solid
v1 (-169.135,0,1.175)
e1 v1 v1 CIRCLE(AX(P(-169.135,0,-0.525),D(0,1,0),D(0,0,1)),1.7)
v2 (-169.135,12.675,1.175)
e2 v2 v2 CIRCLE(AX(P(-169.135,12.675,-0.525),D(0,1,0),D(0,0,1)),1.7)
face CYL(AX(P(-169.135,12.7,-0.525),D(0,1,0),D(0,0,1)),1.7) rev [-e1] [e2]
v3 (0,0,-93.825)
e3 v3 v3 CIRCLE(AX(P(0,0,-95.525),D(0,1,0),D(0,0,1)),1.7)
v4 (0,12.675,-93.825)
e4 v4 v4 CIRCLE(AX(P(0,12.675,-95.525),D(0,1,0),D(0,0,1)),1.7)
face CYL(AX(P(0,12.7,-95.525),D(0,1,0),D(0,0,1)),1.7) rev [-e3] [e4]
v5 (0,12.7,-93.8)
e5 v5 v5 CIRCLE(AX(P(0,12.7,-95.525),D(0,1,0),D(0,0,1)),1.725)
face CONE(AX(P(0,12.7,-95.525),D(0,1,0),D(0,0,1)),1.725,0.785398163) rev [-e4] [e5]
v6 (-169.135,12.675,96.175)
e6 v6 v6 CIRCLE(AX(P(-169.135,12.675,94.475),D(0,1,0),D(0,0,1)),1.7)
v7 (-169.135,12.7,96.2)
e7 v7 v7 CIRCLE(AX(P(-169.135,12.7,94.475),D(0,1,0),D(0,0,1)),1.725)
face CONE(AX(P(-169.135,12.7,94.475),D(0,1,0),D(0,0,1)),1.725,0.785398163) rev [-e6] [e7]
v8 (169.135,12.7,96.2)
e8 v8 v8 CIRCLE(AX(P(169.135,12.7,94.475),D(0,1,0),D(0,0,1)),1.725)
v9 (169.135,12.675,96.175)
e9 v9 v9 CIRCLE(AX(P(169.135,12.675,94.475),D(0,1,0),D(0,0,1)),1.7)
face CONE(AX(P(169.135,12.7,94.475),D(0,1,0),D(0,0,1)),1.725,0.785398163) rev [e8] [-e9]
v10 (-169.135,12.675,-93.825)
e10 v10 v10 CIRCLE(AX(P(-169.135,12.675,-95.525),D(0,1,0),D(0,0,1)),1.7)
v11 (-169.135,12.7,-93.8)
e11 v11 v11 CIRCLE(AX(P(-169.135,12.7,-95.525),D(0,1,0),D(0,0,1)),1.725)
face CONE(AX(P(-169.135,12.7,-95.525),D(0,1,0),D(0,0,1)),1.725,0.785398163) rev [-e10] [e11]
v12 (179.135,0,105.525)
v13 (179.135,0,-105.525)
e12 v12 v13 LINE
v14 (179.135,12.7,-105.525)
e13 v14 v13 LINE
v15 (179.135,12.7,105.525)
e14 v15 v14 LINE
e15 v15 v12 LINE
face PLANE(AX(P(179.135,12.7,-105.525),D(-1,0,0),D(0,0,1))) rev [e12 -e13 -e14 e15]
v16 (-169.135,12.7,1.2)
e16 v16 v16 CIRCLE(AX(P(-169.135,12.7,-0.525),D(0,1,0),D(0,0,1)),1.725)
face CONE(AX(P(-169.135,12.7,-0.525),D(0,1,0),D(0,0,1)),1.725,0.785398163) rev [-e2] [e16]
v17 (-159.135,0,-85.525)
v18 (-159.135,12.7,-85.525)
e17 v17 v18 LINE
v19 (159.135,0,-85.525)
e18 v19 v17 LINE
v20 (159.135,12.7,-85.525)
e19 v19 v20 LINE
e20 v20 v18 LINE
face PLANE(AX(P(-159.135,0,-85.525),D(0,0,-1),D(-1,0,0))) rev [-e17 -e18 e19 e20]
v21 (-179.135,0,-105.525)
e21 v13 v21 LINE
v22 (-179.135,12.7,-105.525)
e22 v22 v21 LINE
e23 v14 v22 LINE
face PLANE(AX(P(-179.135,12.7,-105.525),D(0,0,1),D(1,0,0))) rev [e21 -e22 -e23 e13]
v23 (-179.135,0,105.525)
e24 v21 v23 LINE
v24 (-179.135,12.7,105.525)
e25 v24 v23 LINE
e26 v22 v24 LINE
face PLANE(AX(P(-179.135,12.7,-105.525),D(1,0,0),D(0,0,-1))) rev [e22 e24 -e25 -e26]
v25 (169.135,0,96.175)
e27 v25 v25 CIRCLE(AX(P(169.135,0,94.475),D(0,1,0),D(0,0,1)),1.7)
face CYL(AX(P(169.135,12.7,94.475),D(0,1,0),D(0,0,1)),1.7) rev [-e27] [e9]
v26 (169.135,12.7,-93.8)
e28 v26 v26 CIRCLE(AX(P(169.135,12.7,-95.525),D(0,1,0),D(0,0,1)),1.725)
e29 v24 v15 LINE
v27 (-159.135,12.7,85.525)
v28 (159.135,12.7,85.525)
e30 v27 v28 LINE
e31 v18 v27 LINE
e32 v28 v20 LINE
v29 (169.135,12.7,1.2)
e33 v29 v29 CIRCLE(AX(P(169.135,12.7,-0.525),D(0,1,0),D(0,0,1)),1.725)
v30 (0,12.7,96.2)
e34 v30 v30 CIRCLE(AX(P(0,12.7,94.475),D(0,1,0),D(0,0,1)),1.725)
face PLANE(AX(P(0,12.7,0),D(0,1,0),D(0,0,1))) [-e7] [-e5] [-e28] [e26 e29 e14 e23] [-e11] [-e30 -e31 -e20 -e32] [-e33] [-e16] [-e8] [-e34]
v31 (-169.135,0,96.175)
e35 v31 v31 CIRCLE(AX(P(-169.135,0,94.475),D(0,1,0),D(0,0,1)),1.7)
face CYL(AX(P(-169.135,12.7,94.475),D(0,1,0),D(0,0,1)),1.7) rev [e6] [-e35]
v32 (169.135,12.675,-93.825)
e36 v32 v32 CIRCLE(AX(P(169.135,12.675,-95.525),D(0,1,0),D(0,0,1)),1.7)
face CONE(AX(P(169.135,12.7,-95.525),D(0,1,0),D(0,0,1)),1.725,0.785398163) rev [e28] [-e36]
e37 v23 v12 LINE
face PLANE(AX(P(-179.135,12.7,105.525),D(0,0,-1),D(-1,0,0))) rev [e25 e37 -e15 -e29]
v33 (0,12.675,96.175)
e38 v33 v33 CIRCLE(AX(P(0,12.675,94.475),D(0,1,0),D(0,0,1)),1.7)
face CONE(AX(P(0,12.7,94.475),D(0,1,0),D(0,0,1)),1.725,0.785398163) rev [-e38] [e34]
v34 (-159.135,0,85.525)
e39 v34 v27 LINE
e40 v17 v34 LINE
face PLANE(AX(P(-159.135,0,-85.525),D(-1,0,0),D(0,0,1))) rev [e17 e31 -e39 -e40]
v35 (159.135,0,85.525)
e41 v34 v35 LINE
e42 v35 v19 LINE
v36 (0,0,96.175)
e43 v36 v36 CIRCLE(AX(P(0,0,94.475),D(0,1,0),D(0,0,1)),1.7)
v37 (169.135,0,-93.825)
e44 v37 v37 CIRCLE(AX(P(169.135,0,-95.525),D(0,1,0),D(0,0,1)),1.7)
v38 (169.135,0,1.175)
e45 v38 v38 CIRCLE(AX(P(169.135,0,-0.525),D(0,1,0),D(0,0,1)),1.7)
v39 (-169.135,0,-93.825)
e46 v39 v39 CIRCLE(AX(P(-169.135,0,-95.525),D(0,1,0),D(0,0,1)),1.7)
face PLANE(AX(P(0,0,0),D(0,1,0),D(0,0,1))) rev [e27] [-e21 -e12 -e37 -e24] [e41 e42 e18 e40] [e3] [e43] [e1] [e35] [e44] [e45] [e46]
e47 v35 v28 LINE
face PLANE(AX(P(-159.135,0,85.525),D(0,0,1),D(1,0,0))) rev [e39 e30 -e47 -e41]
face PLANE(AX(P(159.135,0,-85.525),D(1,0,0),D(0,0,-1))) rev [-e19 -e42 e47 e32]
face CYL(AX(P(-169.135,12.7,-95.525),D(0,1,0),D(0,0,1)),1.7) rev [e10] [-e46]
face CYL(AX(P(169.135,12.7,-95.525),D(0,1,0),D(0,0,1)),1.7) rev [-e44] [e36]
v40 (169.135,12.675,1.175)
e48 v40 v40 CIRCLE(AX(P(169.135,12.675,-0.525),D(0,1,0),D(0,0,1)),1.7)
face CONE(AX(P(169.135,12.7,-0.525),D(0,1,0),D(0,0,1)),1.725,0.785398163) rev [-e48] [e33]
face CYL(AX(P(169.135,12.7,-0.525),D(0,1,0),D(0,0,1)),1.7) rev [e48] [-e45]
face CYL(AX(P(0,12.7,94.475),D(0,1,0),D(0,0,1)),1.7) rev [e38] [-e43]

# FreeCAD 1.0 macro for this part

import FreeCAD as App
import Part
import Sketcher
from FreeCAD import Vector


def add_polygon(sketch, points):
    """Adds a closed chain of lines whose ends are joined by coincident constraints."""
    first, n = sketch.GeometryCount, len(points)
    for a, b in zip(points, points[1:] + points[:1]):
        sketch.addGeometry(Part.LineSegment(App.Vector(*a, 0), App.Vector(*b, 0)), False)
    for i in range(n):
        sketch.addConstraint(Sketcher.Constraint("Coincident", first + i, 2, first + (i + 1) % n, 1))

doc = App.newDocument("Part")
body = doc.addObject("PartDesign::Body", "Body")

# Sketch on XZ plane
sketch1 = body.newObject("Sketcher::SketchObject", "Sketch")
sketch1.AttachmentSupport = (doc.getObject("XZ_Plane"), [""])
sketch1.MapMode = "FlatFace"
add_polygon(sketch1, [(-179, -106), (-179, 106), (179, 106), (179, -106)])  # lines 0-3
sketch1.addConstraint(Sketcher.Constraint("Vertical", 0))
sketch1.addConstraint(Sketcher.Constraint("Horizontal", 1))
sketch1.addConstraint(Sketcher.Constraint("Vertical", 2))
sketch1.addConstraint(Sketcher.Constraint("Horizontal", 3))
sketch1.addConstraint(Sketcher.Constraint("Symmetric", 0, 2, 2, 2, -1, 1))
sketch1.addConstraint(Sketcher.Constraint("DistanceX", 1, 1, 1, 2, 358.27))
sketch1.addConstraint(Sketcher.Constraint("DistanceY", 0, 1, 0, 2, 211.05))
pad1 = body.newObject("PartDesign::Pad", "Pad")
pad1.Profile = sketch1
pad1.Length = 12.7
pad1.Reversed = True

# Sketch on XZ plane
sketch2 = body.newObject("Sketcher::SketchObject", "Sketch001")
sketch2.AttachmentSupport = (doc.getObject("XZ_Plane"), [""])
sketch2.MapMode = "FlatFace"
sketch2.AttachmentOffset = App.Placement(Vector(0, 0, -12.7), App.Rotation())
add_polygon(sketch2, [(-159, -86), (-159, 86), (159, 86), (159, -86)])  # lines 0-3
sketch2.addConstraint(Sketcher.Constraint("Vertical", 0))
sketch2.addConstraint(Sketcher.Constraint("Horizontal", 1))
sketch2.addConstraint(Sketcher.Constraint("Vertical", 2))
sketch2.addConstraint(Sketcher.Constraint("Horizontal", 3))
sketch2.addConstraint(Sketcher.Constraint("Symmetric", 0, 2, 2, 2, -1, 1))
sketch2.addConstraint(Sketcher.Constraint("DistanceX", 1, 1, 1, 2, 318.27))
sketch2.addConstraint(Sketcher.Constraint("DistanceY", 0, 1, 0, 2, 171.05))
pocket1 = body.newObject("PartDesign::Pocket", "Pocket")
pocket1.Profile = sketch2
pocket1.Length = 12.7
pocket1.Reversed = True

# Sketch on XZ plane
sketch3 = body.newObject("Sketcher::SketchObject", "Sketch002")
sketch3.AttachmentSupport = (doc.getObject("XZ_Plane"), [""])
sketch3.MapMode = "FlatFace"
sketch3.AttachmentOffset = App.Placement(Vector(0, 0, -12.7), App.Rotation())
sketch3.addGeometry(Part.Circle(Vector(-169.1, -95.5, 0), Vector(0, 0, 1), 1.7), False)
sketch3.addGeometry(Part.Circle(Vector(-169.1, -0.5, 0), Vector(0, 0, 1), 1.7), False)
sketch3.addGeometry(Part.Circle(Vector(-169.1, 94.5, 0), Vector(0, 0, 1), 1.7), False)
sketch3.addGeometry(Part.Circle(Vector(0, 94.5, 0), Vector(0, 0, 1), 1.7), False)
sketch3.addGeometry(Part.Circle(Vector(169.1, 94.5, 0), Vector(0, 0, 1), 1.7), False)
sketch3.addGeometry(Part.Circle(Vector(169.1, -0.5, 0), Vector(0, 0, 1), 1.7), False)
sketch3.addGeometry(Part.Circle(Vector(169.1, -95.5, 0), Vector(0, 0, 1), 1.7), False)
sketch3.addGeometry(Part.Circle(Vector(0, -95.5, 0), Vector(0, 0, 1), 1.7), False)
sketch3.addConstraint(Sketcher.Constraint("Equal", 0, 1))
sketch3.addConstraint(Sketcher.Constraint("Equal", 1, 2))
sketch3.addConstraint(Sketcher.Constraint("Equal", 2, 3))
sketch3.addConstraint(Sketcher.Constraint("Equal", 3, 4))
sketch3.addConstraint(Sketcher.Constraint("Equal", 4, 5))
sketch3.addConstraint(Sketcher.Constraint("Equal", 5, 6))
sketch3.addConstraint(Sketcher.Constraint("Equal", 6, 7))
sketch3.addConstraint(Sketcher.Constraint("Symmetric", 2, 3, 4, 3, -2))
sketch3.addConstraint(Sketcher.Constraint("Symmetric", 1, 3, 5, 3, -2))
sketch3.addConstraint(Sketcher.Constraint("Symmetric", 0, 3, 6, 3, -2))
sketch3.addConstraint(Sketcher.Constraint("PointOnObject", 3, 3, -2))
sketch3.addConstraint(Sketcher.Constraint("PointOnObject", 7, 3, -2))
sketch3.addConstraint(Sketcher.Constraint("Horizontal", 2, 3, 3, 3))
sketch3.addConstraint(Sketcher.Constraint("Horizontal", 6, 3, 7, 3))
sketch3.addConstraint(Sketcher.Constraint("Vertical", 0, 3, 1, 3))
sketch3.addConstraint(Sketcher.Constraint("Vertical", 1, 3, 2, 3))
sketch3.addConstraint(Sketcher.Constraint("Diameter", 0, 3.4))
sketch3.addConstraint(Sketcher.Constraint("DistanceY", 0, 3, 1, 3, 95.0))
sketch3.addConstraint(Sketcher.Constraint("DistanceY", 1, 3, 2, 3, 95.0))
sketch3.addConstraint(Sketcher.Constraint("DistanceX", 2, 3, 4, 3, 338.27))
sketch3.addConstraint(Sketcher.Constraint("DistanceY", 0, 3, -1, 1, 95.525))
doc.recompute()
hole = body.newObject("PartDesign::Hole", "Hole")
hole.Profile = sketch3
hole.ThreadType = "None"
hole.Diameter = 3.4
hole.DepthType = "ThroughAll"
hole.HoleCutType = "Countersink"
hole.HoleCutDiameter = 3.45
hole.HoleCutCountersinkAngle = 90
hole.Reversed = True

doc.recompute()
